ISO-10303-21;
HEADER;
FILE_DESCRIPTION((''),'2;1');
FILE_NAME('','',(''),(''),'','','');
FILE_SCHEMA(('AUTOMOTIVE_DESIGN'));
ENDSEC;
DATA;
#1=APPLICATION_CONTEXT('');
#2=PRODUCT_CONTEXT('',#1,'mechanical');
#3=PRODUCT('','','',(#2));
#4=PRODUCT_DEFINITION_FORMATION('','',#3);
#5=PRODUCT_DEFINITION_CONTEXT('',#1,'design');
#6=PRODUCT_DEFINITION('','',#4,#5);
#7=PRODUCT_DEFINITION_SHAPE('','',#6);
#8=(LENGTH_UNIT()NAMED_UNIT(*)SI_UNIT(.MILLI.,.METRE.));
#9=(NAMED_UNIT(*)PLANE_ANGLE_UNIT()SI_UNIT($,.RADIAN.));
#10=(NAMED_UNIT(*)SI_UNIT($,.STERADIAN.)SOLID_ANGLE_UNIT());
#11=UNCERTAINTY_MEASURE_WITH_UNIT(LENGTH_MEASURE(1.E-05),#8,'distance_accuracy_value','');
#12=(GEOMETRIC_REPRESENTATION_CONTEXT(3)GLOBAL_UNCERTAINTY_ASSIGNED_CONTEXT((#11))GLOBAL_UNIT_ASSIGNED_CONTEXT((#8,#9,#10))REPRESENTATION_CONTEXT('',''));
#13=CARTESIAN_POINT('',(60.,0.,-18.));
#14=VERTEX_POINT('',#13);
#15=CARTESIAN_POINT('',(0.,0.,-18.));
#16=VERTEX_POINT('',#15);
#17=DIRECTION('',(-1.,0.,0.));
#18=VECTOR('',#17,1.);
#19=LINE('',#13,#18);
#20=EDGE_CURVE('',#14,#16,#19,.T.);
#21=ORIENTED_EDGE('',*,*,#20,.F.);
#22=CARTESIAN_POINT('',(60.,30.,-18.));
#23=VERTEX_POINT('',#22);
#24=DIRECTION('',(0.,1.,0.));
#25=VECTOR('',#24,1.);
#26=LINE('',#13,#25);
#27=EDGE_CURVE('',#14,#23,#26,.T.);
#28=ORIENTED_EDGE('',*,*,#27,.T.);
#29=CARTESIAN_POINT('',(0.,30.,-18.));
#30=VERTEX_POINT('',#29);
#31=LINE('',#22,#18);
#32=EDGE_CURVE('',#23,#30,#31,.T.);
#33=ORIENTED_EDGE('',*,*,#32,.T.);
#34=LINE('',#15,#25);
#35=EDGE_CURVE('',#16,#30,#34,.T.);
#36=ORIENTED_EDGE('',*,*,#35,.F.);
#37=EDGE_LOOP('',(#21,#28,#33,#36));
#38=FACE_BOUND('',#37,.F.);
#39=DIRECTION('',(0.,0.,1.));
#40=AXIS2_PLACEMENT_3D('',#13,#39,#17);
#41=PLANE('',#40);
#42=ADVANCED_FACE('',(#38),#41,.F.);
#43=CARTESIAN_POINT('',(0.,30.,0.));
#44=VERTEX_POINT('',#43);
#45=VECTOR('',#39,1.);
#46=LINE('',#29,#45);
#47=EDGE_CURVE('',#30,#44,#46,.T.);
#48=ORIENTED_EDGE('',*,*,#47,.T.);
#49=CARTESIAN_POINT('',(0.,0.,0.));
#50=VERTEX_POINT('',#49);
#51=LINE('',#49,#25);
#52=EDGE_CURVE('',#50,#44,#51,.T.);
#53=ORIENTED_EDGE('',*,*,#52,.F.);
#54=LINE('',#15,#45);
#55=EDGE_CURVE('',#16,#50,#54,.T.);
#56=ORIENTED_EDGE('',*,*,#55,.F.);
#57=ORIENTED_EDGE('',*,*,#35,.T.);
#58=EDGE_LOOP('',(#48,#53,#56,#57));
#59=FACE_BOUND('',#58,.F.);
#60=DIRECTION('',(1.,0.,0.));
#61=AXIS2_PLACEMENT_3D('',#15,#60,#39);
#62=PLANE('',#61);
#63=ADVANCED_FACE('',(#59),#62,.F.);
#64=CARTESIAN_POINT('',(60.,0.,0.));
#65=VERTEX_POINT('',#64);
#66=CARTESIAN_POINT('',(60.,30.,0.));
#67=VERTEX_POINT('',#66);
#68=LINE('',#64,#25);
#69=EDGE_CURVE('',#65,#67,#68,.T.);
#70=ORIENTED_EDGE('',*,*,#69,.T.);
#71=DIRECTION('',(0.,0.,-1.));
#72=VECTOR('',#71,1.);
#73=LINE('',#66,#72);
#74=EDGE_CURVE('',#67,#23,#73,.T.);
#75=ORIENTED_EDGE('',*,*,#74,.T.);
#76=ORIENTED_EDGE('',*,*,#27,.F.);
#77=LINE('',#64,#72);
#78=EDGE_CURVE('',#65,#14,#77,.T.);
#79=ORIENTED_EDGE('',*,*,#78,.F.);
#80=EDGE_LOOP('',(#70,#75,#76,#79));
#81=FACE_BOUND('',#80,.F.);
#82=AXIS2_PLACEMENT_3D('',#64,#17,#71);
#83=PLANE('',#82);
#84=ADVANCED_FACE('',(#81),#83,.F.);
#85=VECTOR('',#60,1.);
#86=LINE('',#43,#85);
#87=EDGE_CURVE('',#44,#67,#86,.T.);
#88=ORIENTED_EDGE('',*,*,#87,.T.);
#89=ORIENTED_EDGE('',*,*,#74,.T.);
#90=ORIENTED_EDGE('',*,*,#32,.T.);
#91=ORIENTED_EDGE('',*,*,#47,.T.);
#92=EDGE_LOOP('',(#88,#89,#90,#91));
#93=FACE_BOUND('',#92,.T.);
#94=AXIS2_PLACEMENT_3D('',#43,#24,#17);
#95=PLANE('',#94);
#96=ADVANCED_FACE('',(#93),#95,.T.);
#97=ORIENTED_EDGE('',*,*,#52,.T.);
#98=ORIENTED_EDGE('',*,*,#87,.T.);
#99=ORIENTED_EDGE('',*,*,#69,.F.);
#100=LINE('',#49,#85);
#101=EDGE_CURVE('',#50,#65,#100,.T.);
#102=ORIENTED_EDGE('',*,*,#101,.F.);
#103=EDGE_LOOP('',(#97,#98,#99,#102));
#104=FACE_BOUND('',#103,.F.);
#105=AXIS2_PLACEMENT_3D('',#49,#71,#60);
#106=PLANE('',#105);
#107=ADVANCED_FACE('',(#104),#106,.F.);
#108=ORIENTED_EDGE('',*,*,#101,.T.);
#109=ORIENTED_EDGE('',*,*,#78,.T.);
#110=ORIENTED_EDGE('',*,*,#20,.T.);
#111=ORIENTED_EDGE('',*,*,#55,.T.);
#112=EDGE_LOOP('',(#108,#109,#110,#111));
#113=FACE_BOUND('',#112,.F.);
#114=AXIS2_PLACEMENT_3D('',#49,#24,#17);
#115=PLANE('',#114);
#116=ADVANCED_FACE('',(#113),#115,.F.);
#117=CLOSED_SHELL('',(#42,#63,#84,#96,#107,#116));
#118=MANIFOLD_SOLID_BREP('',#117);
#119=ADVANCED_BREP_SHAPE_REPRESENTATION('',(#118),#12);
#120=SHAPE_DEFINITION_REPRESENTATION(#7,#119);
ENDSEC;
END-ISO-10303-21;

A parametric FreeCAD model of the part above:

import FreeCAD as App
import Part
import Sketcher


def add_polygon(sketch, points):
    """Adds a closed chain of lines whose ends are joined by coincident constraints."""
    first, n = sketch.GeometryCount, len(points)
    for a, b in zip(points, points[1:] + points[:1]):
        sketch.addGeometry(Part.LineSegment(App.Vector(*a, 0), App.Vector(*b, 0)), False)
    for i in range(n):
        sketch.addConstraint(Sketcher.Constraint("Coincident", first + i, 2, first + (i + 1) % n, 1))

doc = App.newDocument("Part")
body = doc.addObject("PartDesign::Body", "Body")

sketch1 = body.newObject("Sketcher::SketchObject", "Sketch")
sketch1.AttachmentSupport = (doc.getObject("XZ_Plane"), [""])
sketch1.MapMode = "FlatFace"
add_polygon(sketch1, [(0, -18), (0, 0), (60, 0), (60, -18)])
sketch1.addConstraint(Sketcher.Constraint("Vertical", 0))
sketch1.addConstraint(Sketcher.Constraint("Horizontal", 1))
sketch1.addConstraint(Sketcher.Constraint("Vertical", 2))
sketch1.addConstraint(Sketcher.Constraint("Horizontal", 3))
sketch1.addConstraint(Sketcher.Constraint("Coincident", 0, 2, -1, 1))
sketch1.addConstraint(Sketcher.Constraint("DistanceX", 1, 1, 1, 2, 60.0))
sketch1.addConstraint(Sketcher.Constraint("DistanceY", 0, 1, 0, 2, 18.0))
pad1 = body.newObject("PartDesign::Pad", "Pad")
pad1.Profile = sketch1
pad1.Length = 30
pad1.Reversed = True

doc.recompute()
